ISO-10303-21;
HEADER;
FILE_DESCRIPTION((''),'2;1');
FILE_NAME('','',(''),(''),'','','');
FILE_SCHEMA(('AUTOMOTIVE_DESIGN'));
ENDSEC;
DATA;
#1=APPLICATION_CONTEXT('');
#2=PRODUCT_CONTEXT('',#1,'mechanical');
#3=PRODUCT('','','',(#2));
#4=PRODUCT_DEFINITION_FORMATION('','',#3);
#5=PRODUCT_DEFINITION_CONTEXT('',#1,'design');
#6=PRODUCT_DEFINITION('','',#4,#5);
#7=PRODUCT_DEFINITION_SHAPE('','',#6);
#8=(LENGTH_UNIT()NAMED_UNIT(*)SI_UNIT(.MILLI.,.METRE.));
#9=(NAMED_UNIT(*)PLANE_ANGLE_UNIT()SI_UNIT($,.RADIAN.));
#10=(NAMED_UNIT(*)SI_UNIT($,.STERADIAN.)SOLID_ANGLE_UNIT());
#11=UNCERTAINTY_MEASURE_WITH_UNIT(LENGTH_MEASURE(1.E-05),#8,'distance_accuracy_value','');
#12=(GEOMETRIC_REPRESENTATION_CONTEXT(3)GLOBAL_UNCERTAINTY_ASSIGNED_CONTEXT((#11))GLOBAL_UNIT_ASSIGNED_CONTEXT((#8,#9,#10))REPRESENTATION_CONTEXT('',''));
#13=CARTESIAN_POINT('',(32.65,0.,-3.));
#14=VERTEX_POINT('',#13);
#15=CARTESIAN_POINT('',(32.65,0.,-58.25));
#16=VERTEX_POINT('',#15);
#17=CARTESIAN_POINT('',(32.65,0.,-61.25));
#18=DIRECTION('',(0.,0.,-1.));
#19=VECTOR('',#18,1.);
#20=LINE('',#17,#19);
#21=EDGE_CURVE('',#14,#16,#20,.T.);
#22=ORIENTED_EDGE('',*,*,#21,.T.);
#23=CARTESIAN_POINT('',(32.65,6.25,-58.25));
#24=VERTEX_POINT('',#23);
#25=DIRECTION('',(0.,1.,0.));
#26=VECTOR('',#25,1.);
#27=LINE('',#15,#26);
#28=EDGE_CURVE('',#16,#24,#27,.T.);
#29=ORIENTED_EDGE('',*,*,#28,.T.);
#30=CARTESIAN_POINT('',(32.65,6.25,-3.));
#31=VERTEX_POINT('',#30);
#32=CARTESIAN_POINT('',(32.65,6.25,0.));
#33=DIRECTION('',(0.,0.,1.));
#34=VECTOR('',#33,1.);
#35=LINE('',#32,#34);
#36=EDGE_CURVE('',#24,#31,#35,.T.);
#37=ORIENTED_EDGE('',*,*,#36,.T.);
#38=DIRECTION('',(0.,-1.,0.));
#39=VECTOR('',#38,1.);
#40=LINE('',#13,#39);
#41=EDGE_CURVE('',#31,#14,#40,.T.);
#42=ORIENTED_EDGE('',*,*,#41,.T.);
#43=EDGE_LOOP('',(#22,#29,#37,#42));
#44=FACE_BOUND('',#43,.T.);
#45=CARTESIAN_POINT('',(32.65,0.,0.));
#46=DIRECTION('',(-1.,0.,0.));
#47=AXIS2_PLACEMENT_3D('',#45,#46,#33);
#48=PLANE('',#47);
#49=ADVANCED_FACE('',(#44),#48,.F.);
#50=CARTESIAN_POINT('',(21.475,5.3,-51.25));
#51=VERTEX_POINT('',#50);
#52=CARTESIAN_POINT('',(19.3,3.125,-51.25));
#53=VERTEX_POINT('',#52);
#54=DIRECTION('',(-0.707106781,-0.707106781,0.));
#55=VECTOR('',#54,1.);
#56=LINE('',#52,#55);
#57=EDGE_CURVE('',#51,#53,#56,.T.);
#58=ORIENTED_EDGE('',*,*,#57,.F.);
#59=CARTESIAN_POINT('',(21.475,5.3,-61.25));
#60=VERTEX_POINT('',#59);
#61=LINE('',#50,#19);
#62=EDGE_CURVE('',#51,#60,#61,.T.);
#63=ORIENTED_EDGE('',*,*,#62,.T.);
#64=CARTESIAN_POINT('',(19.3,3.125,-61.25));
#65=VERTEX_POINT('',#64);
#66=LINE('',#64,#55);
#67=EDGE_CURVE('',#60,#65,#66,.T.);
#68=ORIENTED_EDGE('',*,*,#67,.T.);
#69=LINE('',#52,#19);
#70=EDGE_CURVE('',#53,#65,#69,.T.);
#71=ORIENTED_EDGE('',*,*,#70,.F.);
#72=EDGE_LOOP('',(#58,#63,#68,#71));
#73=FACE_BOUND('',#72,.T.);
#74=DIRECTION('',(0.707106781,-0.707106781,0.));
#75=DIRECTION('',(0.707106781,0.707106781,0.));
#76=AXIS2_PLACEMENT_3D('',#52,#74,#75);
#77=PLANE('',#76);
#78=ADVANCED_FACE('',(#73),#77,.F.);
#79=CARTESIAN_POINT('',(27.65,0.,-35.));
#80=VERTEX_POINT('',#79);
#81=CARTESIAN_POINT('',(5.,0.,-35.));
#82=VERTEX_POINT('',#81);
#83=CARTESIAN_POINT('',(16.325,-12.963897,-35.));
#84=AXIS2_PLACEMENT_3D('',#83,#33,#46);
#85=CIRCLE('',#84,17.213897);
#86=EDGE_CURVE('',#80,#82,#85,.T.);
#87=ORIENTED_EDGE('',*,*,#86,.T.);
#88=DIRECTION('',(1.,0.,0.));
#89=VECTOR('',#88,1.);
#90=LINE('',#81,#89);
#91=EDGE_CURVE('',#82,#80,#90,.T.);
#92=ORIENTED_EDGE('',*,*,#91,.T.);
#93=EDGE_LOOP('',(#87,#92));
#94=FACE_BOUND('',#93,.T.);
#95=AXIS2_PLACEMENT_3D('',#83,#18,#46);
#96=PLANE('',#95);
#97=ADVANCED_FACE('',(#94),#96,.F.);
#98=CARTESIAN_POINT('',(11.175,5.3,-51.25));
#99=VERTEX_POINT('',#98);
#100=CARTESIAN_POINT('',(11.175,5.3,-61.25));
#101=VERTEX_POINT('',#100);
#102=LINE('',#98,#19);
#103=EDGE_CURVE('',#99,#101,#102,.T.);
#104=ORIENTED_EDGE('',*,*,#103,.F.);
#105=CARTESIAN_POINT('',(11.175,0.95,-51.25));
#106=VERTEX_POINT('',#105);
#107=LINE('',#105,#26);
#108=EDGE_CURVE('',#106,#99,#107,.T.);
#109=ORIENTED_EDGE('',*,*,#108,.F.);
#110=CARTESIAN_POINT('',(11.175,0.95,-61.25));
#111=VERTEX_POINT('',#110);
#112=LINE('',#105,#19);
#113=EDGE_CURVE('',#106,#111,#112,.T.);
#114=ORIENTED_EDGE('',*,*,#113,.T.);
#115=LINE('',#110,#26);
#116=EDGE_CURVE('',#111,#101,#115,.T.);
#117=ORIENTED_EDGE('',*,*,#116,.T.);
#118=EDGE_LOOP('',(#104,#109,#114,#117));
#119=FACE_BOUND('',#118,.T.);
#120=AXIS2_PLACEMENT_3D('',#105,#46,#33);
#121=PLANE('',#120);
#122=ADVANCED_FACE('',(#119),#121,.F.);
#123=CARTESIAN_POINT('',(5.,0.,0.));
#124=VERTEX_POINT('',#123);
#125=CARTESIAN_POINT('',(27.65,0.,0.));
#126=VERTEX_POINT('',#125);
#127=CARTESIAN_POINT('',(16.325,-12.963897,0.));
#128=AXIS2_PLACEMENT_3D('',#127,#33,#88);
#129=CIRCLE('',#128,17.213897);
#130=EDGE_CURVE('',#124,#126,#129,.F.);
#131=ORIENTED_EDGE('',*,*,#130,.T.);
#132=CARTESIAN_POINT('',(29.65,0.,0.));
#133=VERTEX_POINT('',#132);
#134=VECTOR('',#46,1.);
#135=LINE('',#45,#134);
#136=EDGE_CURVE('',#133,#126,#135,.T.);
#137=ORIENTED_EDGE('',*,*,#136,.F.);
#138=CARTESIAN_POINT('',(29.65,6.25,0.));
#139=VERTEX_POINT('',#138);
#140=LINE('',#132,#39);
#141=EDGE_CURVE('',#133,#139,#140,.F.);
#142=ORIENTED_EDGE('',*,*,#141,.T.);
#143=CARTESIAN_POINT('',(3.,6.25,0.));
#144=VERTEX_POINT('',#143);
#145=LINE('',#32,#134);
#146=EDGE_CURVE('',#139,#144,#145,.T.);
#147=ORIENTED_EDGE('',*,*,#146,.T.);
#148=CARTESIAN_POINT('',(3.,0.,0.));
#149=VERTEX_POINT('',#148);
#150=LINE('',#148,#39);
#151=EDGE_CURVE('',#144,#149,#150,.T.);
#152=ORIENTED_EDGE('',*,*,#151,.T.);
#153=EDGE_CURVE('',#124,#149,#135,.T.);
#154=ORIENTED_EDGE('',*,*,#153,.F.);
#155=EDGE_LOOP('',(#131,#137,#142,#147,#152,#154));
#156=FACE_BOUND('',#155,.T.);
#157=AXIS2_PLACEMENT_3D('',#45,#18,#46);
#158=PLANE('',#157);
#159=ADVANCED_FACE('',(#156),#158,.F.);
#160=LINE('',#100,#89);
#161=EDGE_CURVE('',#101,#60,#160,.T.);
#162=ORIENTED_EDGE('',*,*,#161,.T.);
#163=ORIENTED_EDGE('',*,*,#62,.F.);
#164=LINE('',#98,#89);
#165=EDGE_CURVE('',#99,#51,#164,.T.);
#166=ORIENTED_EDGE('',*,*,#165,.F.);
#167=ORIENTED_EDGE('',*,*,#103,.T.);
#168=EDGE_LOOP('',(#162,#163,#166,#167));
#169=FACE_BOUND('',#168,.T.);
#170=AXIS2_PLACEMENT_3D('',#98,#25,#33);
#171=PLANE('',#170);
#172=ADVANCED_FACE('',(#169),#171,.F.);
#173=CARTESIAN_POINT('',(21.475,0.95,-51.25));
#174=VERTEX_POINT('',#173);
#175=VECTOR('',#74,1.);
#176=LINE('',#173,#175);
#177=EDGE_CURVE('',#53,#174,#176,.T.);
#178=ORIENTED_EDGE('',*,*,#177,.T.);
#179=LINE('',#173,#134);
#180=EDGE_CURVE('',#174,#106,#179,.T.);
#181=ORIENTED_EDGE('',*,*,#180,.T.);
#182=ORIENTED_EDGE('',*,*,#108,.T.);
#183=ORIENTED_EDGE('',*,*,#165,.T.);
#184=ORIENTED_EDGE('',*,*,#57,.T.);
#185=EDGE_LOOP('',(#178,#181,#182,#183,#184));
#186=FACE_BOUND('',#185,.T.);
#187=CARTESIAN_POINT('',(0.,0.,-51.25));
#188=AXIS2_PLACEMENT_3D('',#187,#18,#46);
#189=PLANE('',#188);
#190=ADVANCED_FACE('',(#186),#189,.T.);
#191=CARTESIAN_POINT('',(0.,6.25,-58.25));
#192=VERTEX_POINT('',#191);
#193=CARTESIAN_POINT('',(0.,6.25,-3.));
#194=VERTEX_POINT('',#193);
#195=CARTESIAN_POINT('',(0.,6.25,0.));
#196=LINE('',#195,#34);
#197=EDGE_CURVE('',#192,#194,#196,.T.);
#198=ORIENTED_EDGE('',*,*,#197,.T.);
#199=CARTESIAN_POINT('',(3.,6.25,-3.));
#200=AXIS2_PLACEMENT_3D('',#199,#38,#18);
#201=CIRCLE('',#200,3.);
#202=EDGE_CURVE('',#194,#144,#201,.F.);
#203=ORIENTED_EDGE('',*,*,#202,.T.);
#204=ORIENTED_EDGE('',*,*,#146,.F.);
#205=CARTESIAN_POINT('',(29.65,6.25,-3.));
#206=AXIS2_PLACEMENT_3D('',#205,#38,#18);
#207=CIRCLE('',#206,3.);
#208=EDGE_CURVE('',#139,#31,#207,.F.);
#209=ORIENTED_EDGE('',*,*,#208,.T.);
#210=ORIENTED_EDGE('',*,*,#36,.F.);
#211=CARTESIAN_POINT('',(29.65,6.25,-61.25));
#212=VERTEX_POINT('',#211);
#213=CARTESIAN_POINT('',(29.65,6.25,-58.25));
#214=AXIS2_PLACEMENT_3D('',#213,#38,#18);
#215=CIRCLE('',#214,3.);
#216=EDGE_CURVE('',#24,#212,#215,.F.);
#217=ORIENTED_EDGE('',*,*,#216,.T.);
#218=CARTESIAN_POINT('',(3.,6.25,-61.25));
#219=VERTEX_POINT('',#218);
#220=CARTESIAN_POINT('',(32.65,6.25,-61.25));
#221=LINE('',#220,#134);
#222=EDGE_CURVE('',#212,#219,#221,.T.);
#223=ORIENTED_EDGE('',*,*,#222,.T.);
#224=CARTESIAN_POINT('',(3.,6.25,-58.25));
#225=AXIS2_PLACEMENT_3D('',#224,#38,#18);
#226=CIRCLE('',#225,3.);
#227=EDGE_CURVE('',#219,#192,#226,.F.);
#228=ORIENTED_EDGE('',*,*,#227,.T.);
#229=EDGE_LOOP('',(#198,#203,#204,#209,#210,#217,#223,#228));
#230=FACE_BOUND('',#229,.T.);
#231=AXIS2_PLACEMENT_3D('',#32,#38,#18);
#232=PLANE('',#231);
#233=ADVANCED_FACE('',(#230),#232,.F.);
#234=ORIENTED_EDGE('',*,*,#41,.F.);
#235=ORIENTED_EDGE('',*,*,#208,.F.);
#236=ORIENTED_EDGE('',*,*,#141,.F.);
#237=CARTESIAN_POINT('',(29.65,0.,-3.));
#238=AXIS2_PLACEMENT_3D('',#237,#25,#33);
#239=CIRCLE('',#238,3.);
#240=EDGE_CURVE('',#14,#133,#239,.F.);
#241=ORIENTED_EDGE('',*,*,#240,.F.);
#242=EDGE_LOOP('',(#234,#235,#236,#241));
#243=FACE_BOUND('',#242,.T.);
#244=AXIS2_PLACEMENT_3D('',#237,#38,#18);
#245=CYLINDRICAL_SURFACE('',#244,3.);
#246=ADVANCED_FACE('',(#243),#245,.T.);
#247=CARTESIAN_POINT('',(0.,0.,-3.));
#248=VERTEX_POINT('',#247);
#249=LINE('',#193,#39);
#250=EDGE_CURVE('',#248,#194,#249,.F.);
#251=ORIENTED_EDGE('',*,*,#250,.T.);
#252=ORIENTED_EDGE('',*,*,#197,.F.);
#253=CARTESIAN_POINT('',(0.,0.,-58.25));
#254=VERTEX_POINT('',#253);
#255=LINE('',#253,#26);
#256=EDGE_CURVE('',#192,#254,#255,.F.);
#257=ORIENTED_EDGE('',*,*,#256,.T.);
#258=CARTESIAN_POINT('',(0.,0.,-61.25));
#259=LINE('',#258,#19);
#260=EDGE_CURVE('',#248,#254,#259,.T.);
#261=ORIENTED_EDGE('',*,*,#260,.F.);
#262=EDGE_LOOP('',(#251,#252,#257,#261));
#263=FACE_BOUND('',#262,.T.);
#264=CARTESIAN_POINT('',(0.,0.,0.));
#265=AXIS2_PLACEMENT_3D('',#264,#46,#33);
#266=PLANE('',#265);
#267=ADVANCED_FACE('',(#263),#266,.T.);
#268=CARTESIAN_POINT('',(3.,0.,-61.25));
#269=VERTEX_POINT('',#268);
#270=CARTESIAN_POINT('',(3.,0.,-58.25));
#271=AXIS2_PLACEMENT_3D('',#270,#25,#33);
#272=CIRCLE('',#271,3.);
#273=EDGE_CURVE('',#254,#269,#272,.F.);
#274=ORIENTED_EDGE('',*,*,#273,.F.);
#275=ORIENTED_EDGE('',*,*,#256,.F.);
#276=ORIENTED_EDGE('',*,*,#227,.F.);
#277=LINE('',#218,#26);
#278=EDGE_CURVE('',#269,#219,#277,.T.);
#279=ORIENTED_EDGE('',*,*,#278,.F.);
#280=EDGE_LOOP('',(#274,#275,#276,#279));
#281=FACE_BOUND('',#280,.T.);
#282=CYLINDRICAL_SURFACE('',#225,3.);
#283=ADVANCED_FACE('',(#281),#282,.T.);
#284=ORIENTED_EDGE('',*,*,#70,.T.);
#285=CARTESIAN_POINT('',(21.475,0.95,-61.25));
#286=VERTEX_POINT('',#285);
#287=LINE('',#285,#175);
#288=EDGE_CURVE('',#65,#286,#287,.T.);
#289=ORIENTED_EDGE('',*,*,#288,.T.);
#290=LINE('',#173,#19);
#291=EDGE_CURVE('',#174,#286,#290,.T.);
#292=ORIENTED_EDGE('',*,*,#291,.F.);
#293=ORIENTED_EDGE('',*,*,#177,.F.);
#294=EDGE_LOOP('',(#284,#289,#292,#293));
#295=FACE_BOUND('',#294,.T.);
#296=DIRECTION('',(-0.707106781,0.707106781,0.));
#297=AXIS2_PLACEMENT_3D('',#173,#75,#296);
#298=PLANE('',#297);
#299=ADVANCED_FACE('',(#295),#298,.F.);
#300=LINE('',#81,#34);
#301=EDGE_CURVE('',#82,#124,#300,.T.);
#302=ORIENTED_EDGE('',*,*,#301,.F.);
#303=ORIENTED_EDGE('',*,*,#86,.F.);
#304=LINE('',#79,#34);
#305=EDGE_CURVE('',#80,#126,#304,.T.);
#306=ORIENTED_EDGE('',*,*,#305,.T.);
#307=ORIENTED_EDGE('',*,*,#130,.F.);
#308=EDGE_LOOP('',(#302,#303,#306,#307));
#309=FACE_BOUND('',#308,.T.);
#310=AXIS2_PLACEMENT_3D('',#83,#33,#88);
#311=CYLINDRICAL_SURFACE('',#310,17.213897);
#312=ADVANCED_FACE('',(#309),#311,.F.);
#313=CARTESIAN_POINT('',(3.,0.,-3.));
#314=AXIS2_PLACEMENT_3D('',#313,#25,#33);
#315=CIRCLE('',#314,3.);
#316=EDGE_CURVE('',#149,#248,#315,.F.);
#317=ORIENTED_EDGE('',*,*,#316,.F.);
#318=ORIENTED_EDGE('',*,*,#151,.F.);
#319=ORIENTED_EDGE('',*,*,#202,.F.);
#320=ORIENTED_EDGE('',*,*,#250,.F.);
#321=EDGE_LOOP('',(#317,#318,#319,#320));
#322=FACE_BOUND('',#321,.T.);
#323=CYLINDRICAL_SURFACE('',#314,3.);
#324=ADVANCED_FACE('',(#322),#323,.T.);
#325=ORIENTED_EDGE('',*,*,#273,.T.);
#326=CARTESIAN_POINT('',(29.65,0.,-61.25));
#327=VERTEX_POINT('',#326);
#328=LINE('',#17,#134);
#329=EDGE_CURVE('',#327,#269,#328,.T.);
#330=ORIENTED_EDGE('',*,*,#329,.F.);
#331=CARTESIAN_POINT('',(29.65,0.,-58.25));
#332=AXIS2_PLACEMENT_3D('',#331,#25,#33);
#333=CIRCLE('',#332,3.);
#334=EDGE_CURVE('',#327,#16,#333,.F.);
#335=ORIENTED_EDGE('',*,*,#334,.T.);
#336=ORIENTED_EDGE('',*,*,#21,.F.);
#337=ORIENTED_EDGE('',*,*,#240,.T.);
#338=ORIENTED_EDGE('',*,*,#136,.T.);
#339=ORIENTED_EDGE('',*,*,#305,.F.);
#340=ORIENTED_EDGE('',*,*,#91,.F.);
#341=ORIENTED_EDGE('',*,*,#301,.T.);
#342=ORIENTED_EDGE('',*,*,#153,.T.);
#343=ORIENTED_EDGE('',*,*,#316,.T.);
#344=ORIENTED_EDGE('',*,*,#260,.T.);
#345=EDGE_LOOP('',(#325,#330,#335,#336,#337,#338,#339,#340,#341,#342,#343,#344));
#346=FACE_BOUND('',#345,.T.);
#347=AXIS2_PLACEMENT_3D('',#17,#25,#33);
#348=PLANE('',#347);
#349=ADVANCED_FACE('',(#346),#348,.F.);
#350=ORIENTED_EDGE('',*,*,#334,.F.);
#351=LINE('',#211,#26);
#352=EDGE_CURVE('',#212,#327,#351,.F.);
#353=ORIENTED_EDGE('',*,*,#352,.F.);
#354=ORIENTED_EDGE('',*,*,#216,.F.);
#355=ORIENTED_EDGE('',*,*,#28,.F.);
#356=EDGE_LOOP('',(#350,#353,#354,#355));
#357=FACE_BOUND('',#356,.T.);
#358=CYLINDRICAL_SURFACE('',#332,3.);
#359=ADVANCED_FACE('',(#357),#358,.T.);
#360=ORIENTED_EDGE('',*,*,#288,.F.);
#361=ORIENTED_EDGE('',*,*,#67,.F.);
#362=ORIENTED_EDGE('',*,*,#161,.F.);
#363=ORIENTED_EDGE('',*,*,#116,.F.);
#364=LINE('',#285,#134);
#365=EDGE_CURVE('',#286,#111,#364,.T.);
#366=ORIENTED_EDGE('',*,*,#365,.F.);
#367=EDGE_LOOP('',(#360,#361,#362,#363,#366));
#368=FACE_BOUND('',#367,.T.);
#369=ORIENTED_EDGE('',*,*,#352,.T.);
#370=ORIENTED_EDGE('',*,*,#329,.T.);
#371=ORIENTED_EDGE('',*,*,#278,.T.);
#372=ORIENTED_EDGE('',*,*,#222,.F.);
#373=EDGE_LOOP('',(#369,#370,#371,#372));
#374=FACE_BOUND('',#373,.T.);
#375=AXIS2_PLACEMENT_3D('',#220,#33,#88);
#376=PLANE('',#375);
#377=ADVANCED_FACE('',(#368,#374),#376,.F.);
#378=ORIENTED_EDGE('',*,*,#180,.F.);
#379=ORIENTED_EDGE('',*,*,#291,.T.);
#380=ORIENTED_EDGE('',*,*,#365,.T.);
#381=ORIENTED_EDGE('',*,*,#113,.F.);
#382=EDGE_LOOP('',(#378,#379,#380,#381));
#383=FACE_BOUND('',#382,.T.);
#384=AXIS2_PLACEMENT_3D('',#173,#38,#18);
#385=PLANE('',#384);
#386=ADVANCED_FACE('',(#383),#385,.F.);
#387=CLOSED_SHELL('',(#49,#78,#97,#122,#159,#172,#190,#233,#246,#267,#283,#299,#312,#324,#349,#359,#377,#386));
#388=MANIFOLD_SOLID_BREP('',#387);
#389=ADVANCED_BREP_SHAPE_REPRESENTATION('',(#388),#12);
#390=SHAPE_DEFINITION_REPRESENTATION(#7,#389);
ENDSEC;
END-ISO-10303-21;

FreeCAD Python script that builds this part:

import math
import FreeCAD as App
import Part
import Sketcher


def edges_at(feature, points):
    """Names of the edges that pass closest to the given points."""
    edges = feature.Shape.Edges
    near = lambda p: min(range(len(edges)), key=lambda i: edges[i].distToShape(Part.Vertex(*p))[0])
    return sorted({f"Edge{near(p) + 1}" for p in points})


def add_polygon(sketch, points):
    """Adds a closed chain of lines whose ends are joined by coincident constraints."""
    first, n = sketch.GeometryCount, len(points)
    for a, b in zip(points, points[1:] + points[:1]):
        sketch.addGeometry(Part.LineSegment(App.Vector(*a, 0), App.Vector(*b, 0)), False)
    for i in range(n):
        sketch.addConstraint(Sketcher.Constraint("Coincident", first + i, 2, first + (i + 1) % n, 1))

doc = App.newDocument("Part")
params = doc.addObject("Spreadsheet::Sheet", "Params")
for row, (alias, value) in enumerate([
    ("sketch1_width", "6.25 mm"),
    ("sketch1_height", "61.25 mm"),
    ("pad1_length", "32.65 mm"),
    ("sketch2_width", "22.65 mm"),
    ("pocket1_length", "70.689651 mm"),
    ("pocket1_length2", "35 mm"),
    ("sketch3_width", "10.3 mm"),
    ("sketch3_height", "4.35 mm"),
    ("pocket2_length", "10 mm"),
    ("fillet_radius", "3 mm"),
], start=1):
    params.set(f"A{row}", alias)
    params.set(f"B{row}", "=" + value)
    params.setAlias(f"B{row}", alias)

body = doc.addObject("PartDesign::Body", "Body")

sketch1 = body.newObject("Sketcher::SketchObject", "Sketch")
sketch1.AttachmentSupport = (doc.getObject("YZ_Plane"), [""])
sketch1.MapMode = "FlatFace"
add_polygon(sketch1, [(6, 0), (0, 0), (0, -61), (6, -61)])
sketch1.addConstraint(Sketcher.Constraint("Horizontal", 0))
sketch1.addConstraint(Sketcher.Constraint("Vertical", 1))
sketch1.addConstraint(Sketcher.Constraint("Horizontal", 2))
sketch1.addConstraint(Sketcher.Constraint("Vertical", 3))
sketch1.addConstraint(Sketcher.Constraint("Coincident", 0, 2, -1, 1))
sketch1.addConstraint(Sketcher.Constraint("DistanceX", 0, 2, 0, 1, 6.25))
sketch1.addConstraint(Sketcher.Constraint("DistanceY", 1, 2, 1, 1, 61.25))
sketch1.setExpression("Constraints[9]", "Params.sketch1_width")
sketch1.setExpression("Constraints[10]", "Params.sketch1_height")
pad1 = body.newObject("PartDesign::Pad", "Pad")
pad1.Profile = sketch1
pad1.setExpression("Length", "Params.pad1_length")

sketch2 = body.newObject("Sketcher::SketchObject", "Sketch001")
sketch2.AttachmentSupport = (doc.getObject("XY_Plane"), [""])
sketch2.MapMode = "FlatFace"
sketch2.addGeometry(Part.LineSegment(App.Vector(5, 0, 0), App.Vector(28, 0, 0)), False)
sketch2.addGeometry(Part.ArcOfCircle(Part.Circle(App.Vector(16, -13, 0), App.Vector(0, 0, 1), 17), math.radians(49), math.radians(131)), False)
sketch2.addConstraint(Sketcher.Constraint("Coincident", 0, 1, 1, 2))
sketch2.addConstraint(Sketcher.Constraint("Coincident", 1, 1, 0, 2))
sketch2.addConstraint(Sketcher.Constraint("Horizontal", 0))
sketch2.addConstraint(Sketcher.Constraint("PointOnObject", 0, 1, -1))
sketch2.addConstraint(Sketcher.Constraint("DistanceX", -1, 1, 0, 1, 5.0))
sketch2.addConstraint(Sketcher.Constraint("DistanceX", 0, 1, 0, 2, 22.65))
sketch2.addConstraint(Sketcher.Constraint("Radius", 1, 17.213897))
sketch2.setExpression("Constraints[5]", "Params.sketch2_width")
pocket1 = body.newObject("PartDesign::Pocket", "Pocket")
pocket1.Profile = sketch2
pocket1.Type = "TwoLengths"
pocket1.setExpression("Length", "Params.pocket1_length")
pocket1.setExpression("Length2", "Params.pocket1_length2")
pocket1.Reversed = True

sketch3 = body.newObject("Sketcher::SketchObject", "Sketch002")
sketch3.AttachmentSupport = (doc.getObject("XY_Plane"), [""])
sketch3.MapMode = "FlatFace"
sketch3.AttachmentOffset = App.Placement(App.Vector(0, 0, -61.25), App.Rotation())
add_polygon(sketch3, [(11.2, 0.9), (11.2, 5.3), (21.5, 5.3), (19.3, 3.1), (21.5, 0.9)])
sketch3.addConstraint(Sketcher.Constraint("Vertical", 0))
sketch3.addConstraint(Sketcher.Constraint("Horizontal", 1))
sketch3.addConstraint(Sketcher.Constraint("Horizontal", 4))
sketch3.addConstraint(Sketcher.Constraint("Perpendicular", 2, 3))
sketch3.addConstraint(Sketcher.Constraint("Vertical", 1, 2, 3, 2))
sketch3.addConstraint(Sketcher.Constraint("Equal", 2, 3))
sketch3.addConstraint(Sketcher.Constraint("DistanceX", 1, 1, 1, 2, 10.3))
sketch3.addConstraint(Sketcher.Constraint("DistanceY", 0, 1, 0, 2, 4.35))
sketch3.addConstraint(Sketcher.Constraint("DistanceY", -1, 1, 0, 2, 5.3))
sketch3.addConstraint(Sketcher.Constraint("DistanceX", -1, 1, 2, 2, 19.3))
sketch3.setExpression("Constraints[11]", "Params.sketch3_width")
sketch3.setExpression("Constraints[12]", "Params.sketch3_height")
pocket2 = body.newObject("PartDesign::Pocket", "Pocket001")
pocket2.Profile = sketch3
pocket2.setExpression("Length", "Params.pocket2_length")
pocket2.Reversed = True
doc.recompute()

fillet = body.newObject("PartDesign::Fillet", "Fillet")
fillet.Base = (pocket2, edges_at(pocket2, [
    (32.65, 3.125, 0),
    (0, 3.125, 0),
    (0, 3.125, -61.25),
    (32.65, 3.125, -61.25),
]))
fillet.setExpression("Radius", "Params.fillet_radius")

doc.recompute()
